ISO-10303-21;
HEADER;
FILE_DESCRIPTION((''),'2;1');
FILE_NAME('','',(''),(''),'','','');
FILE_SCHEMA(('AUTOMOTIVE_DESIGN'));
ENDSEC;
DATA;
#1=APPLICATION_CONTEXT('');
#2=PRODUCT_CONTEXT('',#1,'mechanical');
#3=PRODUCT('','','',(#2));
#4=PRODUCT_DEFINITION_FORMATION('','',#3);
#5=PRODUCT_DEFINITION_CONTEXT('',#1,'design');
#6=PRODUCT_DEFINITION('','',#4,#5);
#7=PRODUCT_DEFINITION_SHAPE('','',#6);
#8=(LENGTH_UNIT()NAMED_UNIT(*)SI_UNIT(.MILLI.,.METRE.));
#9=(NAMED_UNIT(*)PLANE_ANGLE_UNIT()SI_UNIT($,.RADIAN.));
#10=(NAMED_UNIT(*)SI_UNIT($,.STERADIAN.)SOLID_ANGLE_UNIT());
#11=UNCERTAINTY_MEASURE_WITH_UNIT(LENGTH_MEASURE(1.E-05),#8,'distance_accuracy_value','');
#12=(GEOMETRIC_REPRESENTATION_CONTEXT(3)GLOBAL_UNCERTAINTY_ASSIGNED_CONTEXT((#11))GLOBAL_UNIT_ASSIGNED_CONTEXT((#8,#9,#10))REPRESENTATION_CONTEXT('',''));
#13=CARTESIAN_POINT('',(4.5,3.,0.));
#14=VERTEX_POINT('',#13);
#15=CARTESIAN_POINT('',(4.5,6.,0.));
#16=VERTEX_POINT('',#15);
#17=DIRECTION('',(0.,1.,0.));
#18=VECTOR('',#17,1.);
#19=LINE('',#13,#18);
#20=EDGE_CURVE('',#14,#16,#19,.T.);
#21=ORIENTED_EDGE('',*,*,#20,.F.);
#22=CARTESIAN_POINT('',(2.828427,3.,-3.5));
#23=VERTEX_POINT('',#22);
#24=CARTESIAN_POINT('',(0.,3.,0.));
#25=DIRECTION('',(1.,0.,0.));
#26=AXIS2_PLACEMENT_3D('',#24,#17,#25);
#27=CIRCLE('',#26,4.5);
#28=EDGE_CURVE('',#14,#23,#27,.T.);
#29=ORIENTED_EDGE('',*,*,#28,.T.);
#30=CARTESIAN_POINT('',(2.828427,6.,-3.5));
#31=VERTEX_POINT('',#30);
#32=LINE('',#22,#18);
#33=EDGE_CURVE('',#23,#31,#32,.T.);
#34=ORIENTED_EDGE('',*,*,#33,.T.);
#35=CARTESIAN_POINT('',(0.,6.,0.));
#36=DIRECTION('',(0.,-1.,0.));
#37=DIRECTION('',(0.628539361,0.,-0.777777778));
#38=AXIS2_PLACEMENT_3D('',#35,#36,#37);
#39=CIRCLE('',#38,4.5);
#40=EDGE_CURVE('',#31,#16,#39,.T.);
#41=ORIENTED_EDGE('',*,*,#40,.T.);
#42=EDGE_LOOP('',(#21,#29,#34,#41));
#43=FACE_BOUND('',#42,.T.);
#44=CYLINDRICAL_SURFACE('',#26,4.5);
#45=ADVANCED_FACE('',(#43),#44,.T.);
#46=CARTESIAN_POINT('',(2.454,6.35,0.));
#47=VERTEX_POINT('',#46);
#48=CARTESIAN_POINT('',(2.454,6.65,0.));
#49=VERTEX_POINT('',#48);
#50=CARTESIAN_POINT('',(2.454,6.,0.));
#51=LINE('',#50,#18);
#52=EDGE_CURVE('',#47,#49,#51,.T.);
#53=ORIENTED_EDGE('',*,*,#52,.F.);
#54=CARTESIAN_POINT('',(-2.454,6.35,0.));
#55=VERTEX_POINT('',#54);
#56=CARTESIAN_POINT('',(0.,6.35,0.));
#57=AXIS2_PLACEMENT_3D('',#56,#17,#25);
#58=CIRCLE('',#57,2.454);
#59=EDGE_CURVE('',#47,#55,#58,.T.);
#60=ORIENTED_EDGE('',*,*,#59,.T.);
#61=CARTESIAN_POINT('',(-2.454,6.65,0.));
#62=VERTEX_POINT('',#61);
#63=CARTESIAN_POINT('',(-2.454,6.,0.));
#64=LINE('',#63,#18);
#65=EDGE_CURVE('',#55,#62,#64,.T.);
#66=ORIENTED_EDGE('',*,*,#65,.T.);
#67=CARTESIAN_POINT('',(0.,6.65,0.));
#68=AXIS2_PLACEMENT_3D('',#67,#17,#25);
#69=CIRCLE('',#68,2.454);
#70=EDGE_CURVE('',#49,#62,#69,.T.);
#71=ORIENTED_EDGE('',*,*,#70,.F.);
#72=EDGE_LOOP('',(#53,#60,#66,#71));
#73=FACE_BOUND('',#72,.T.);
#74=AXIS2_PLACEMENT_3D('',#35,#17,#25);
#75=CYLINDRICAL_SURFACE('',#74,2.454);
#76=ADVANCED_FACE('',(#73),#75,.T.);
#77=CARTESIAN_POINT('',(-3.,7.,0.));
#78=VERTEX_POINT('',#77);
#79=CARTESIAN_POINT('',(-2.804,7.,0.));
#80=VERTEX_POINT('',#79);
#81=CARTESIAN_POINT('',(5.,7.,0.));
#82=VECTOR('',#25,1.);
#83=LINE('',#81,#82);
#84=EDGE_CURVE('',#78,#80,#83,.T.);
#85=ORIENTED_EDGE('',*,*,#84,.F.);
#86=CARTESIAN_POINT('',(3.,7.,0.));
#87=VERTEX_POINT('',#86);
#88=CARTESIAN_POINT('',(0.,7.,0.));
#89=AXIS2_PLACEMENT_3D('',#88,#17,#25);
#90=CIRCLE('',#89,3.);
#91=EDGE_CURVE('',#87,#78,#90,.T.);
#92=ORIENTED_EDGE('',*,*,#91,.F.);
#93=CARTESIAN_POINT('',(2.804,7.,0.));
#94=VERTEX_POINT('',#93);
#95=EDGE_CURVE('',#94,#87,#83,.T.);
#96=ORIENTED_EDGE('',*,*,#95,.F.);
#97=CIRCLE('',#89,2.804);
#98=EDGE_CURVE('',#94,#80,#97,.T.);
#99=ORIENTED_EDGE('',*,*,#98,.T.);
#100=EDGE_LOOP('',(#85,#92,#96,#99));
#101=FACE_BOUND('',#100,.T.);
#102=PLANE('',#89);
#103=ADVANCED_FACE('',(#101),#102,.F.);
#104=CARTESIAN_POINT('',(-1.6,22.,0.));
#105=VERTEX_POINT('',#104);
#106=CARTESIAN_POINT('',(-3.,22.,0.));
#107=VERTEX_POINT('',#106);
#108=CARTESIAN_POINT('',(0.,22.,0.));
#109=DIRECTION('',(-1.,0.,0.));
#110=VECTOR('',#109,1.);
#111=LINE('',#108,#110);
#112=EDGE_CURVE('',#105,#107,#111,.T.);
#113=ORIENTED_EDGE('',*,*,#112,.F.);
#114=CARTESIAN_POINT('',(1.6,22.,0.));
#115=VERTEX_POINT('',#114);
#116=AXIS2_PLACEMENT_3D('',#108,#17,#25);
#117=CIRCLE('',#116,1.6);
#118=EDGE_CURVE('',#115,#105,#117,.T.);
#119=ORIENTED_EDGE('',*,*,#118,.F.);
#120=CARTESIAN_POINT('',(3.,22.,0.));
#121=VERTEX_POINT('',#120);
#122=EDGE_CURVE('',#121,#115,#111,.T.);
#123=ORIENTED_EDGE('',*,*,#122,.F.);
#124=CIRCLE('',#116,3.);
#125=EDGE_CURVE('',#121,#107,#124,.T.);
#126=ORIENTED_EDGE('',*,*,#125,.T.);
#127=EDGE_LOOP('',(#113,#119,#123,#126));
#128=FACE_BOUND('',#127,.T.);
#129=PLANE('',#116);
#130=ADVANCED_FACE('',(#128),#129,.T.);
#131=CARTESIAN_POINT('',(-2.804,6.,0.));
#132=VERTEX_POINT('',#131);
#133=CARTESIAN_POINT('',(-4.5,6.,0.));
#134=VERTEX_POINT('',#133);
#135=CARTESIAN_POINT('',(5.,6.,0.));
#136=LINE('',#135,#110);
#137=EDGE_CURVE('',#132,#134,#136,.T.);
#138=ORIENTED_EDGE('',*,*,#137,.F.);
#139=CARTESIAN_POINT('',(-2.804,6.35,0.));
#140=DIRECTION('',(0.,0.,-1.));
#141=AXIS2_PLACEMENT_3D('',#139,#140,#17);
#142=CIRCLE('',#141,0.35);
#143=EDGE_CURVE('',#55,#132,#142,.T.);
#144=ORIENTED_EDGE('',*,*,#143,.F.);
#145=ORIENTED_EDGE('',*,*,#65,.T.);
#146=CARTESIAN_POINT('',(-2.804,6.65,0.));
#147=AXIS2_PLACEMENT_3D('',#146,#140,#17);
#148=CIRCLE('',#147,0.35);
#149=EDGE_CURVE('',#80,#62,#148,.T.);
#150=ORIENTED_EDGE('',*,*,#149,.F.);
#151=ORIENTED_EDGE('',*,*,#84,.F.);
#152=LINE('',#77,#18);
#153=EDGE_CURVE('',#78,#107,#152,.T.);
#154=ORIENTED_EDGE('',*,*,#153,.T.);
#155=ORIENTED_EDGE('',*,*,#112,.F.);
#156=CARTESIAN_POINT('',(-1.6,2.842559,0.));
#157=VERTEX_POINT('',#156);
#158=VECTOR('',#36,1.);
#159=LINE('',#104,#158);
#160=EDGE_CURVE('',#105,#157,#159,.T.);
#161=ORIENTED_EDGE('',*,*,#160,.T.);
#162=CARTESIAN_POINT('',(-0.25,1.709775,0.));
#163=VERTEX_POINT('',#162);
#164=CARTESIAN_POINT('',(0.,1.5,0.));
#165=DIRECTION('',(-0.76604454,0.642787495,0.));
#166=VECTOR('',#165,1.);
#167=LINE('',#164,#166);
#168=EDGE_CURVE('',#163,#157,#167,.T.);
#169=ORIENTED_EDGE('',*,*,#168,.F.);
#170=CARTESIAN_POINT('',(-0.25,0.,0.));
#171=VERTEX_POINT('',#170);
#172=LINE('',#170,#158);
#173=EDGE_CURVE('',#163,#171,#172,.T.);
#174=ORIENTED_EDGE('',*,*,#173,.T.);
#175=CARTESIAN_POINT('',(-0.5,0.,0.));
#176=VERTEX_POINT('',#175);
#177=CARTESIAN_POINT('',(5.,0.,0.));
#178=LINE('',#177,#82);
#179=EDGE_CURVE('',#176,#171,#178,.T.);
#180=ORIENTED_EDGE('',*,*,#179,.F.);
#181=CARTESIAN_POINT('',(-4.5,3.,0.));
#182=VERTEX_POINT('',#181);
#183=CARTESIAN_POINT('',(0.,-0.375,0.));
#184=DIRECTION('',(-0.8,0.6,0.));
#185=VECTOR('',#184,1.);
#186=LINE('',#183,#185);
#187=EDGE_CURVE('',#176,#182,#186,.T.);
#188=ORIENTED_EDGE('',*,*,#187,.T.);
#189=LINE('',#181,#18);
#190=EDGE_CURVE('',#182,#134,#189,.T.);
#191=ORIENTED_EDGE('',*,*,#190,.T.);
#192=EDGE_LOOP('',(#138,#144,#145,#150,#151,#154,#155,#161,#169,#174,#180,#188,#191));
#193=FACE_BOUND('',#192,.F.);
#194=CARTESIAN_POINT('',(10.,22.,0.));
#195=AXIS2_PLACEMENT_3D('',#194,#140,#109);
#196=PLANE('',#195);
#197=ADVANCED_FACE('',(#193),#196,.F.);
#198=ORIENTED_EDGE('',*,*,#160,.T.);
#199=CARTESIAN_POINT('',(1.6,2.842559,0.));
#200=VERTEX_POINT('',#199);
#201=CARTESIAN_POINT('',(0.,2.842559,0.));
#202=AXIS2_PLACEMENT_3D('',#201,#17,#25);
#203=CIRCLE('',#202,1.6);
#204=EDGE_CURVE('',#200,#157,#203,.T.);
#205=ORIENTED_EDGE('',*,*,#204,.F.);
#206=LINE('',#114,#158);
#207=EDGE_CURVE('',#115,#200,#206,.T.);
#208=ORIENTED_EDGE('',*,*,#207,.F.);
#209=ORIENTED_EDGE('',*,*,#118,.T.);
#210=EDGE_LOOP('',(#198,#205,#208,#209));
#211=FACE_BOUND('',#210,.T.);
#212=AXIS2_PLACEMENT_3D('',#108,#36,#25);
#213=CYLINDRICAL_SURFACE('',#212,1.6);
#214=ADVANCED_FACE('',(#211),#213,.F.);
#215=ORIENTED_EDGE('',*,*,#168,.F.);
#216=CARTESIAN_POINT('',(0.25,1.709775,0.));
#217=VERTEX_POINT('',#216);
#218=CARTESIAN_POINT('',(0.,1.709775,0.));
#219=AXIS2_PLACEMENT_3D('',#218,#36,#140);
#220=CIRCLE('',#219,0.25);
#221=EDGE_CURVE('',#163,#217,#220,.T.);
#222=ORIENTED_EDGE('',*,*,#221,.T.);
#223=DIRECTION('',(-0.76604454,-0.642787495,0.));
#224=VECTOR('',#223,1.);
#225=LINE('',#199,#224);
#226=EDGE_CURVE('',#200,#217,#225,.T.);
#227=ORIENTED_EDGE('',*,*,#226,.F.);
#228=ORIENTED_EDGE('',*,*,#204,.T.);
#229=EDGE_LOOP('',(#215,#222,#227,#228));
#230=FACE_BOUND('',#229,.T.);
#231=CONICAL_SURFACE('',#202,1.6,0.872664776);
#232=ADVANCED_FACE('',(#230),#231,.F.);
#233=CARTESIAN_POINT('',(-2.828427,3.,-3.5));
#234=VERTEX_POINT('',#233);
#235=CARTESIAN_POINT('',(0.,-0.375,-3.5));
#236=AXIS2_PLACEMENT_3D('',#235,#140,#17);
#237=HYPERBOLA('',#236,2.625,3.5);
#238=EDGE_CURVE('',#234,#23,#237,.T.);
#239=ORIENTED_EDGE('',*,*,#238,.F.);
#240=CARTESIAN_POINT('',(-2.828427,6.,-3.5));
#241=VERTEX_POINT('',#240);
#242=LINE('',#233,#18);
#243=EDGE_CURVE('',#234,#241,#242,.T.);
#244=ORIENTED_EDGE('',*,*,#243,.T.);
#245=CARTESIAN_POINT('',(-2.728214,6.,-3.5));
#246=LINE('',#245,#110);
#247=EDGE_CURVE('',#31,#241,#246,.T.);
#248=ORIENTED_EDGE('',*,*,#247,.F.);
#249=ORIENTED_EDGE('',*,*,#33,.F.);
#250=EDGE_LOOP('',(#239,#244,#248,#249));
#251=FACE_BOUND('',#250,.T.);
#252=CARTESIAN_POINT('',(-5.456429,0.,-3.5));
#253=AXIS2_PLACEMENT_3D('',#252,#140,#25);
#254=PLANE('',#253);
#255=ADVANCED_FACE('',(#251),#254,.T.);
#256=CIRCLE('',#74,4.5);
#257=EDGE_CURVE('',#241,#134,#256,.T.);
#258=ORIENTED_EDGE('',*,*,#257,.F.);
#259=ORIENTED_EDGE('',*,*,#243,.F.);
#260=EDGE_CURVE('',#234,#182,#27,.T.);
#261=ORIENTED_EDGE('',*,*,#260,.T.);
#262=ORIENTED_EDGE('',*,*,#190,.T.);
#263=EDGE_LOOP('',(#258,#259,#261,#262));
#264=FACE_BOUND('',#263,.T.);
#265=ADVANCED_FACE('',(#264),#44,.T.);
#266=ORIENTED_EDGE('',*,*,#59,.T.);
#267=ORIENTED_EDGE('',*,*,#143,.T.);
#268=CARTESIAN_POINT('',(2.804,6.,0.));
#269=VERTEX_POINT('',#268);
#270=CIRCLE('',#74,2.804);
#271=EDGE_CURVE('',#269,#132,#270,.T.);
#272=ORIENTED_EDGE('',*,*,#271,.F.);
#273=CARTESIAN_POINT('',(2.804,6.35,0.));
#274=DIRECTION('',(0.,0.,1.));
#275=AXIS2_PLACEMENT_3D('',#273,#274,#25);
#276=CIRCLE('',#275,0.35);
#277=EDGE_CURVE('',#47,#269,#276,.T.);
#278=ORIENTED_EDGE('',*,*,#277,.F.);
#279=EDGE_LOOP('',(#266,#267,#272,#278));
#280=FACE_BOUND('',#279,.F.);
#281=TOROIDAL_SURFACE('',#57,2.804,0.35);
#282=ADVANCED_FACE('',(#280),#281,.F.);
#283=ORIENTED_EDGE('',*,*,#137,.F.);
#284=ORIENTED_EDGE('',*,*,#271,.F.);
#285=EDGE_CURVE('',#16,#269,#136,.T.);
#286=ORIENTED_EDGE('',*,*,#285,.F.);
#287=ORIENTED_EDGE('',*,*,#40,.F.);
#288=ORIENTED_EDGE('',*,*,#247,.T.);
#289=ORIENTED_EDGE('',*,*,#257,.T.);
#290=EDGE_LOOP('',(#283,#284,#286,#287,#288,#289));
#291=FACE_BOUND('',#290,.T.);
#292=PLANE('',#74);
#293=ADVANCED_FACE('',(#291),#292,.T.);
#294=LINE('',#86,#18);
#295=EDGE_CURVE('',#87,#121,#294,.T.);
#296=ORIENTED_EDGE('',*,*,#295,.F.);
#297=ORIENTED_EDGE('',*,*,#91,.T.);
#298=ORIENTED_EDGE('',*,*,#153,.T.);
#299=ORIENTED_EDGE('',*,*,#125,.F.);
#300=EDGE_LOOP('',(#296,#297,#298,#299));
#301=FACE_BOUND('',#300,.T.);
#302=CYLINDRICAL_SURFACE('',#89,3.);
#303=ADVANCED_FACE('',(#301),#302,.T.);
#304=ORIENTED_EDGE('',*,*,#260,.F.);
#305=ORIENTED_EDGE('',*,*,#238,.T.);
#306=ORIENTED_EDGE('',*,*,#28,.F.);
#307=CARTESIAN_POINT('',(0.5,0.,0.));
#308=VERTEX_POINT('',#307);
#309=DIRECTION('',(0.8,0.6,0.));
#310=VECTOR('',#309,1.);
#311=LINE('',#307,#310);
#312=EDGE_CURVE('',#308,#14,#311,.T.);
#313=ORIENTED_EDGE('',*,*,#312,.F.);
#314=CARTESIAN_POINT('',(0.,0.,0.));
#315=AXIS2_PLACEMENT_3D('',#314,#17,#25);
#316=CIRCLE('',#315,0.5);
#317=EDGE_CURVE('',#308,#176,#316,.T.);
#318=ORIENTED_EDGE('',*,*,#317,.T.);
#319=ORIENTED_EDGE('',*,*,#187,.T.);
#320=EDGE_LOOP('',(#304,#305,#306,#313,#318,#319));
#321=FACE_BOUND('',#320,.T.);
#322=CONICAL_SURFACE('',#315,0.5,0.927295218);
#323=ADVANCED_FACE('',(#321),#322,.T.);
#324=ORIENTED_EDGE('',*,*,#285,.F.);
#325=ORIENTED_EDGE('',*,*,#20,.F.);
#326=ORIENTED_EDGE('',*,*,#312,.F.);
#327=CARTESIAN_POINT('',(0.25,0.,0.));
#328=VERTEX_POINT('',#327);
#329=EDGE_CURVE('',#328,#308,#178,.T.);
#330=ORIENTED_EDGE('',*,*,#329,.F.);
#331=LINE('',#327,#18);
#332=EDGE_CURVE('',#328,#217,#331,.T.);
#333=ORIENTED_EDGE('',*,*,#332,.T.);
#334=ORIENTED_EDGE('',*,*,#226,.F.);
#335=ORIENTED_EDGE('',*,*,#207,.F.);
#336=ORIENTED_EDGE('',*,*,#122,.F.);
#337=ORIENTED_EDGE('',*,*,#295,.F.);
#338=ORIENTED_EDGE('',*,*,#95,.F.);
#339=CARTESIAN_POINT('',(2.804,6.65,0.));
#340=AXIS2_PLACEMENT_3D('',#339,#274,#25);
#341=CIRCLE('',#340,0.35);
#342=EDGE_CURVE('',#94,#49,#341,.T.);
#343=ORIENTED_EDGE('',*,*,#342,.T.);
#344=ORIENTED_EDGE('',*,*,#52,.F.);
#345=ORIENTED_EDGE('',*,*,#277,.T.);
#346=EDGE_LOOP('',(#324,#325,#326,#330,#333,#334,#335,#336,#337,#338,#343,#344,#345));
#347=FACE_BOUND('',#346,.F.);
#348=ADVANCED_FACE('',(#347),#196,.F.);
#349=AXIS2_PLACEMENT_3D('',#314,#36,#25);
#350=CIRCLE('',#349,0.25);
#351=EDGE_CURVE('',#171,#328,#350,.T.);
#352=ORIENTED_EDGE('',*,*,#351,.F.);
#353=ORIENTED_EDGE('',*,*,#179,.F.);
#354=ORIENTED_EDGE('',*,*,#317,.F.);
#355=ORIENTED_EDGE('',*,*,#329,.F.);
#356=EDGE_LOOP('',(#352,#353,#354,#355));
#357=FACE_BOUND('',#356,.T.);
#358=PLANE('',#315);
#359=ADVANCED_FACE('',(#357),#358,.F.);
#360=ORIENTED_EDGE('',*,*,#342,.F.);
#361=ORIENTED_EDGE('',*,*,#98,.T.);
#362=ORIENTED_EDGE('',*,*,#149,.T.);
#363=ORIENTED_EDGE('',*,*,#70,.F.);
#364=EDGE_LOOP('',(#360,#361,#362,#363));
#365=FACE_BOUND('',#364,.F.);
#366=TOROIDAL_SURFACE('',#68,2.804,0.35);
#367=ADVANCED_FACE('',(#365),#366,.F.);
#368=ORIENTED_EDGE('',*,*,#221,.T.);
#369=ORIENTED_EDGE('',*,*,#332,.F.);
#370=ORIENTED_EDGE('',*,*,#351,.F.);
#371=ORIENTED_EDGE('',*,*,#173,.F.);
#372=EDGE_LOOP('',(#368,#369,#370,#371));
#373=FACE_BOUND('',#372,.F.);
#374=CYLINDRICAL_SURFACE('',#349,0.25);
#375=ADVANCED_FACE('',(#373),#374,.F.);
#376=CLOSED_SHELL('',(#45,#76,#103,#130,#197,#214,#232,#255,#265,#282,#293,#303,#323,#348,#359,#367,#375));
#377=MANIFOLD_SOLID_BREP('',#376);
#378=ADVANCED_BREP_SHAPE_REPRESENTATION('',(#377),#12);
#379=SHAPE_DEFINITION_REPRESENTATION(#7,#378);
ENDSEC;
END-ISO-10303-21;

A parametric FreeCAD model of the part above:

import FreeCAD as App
import Part
import Sketcher

V = App.Vector
Q = App.Units.Quantity


def edges_at(feature, points):
    """Names of the edges that pass closest to the given points."""
    edges = feature.Shape.Edges
    near = lambda p: min(range(len(edges)), key=lambda i: edges[i].distToShape(Part.Vertex(*p))[0])
    return sorted({f"Edge{near(p) + 1}" for p in points})

doc = App.newDocument("Part")
params = doc.addObject("Spreadsheet::Sheet", "Params")
for row, (alias, value) in enumerate([
    ("sketch1_height", "3 mm"),
    ("sketch1_height2", "1 mm"),
    ("sketch1_height3", "15 mm"),
    ("sketch1_length", "5 mm"),
    ("sketch1_width", "0.5 mm"),
    ("revolution_angle", "360 deg"),
    ("sketch2_diameter", "0.5 mm"),
    ("pocket1_length", "5 mm"),
    ("sketch3_width", "10 mm"),
    ("fillet_radius", "0.35 mm"),
    ("sketch4_width", "20 mm"),
    ("sketch4_height", "10 mm"),
], start=1):
    params.set(f"A{row}", alias)
    params.set(f"B{row}", "=" + value)
    params.setAlias(f"B{row}", alias)

body = doc.addObject("PartDesign::Body", "Body")

sketch1 = body.newObject("Sketcher::SketchObject", "Sketch")
sketch1.AttachmentSupport = (doc.getObject("XY_Plane"), [""])
sketch1.MapMode = "FlatFace"
sketch1.addGeometry([
    Part.LineSegment(V(0, 0, 0), V(0.5, 0, 0)),
    Part.LineSegment(V(0.5, 0, 0), V(4.5, 3, 0)),
    Part.LineSegment(V(4.5, 3, 0), V(4.5, 6, 0)),
    Part.LineSegment(V(4.5, 6, 0), V(2.5, 6, 0)),
    Part.LineSegment(V(2.5, 6, 0), V(2.5, 7, 0)),
    Part.LineSegment(V(2.5, 7, 0), V(3, 7, 0)),
    Part.LineSegment(V(3, 7, 0), V(3, 22, 0)),
    Part.LineSegment(V(3, 22, 0), V(1.6, 22, 0)),
    Part.LineSegment(V(1.6, 22, 0), V(1.6, 2.8, 0)),
    Part.LineSegment(V(1.6, 2.8, 0), V(0, 1.5, 0)),
    Part.LineSegment(V(0, 1.5, 0), V(0, 0, 0)),
], False)
sketch1.addConstraint([
    Sketcher.Constraint("Coincident", 0, 2, 1, 1),
    Sketcher.Constraint("Coincident", 1, 2, 2, 1),
    Sketcher.Constraint("Coincident", 2, 2, 3, 1),
    Sketcher.Constraint("Coincident", 3, 2, 4, 1),
    Sketcher.Constraint("Coincident", 4, 2, 5, 1),
    Sketcher.Constraint("Coincident", 5, 2, 6, 1),
    Sketcher.Constraint("Coincident", 6, 2, 7, 1),
    Sketcher.Constraint("Coincident", 7, 2, 8, 1),
    Sketcher.Constraint("Coincident", 8, 2, 9, 1),
    Sketcher.Constraint("Coincident", 9, 2, 10, 1),
    Sketcher.Constraint("Coincident", 10, 2, 0, 1),
    Sketcher.Constraint("Horizontal", 0),
    Sketcher.Constraint("Vertical", 2),
    Sketcher.Constraint("Horizontal", 3),
    Sketcher.Constraint("Vertical", 4),
    Sketcher.Constraint("Horizontal", 5),
    Sketcher.Constraint("Vertical", 6),
    Sketcher.Constraint("Horizontal", 7),
    Sketcher.Constraint("Vertical", 8),
    Sketcher.Constraint("Vertical", 10),
    Sketcher.Constraint("Coincident", 10, 2, -1, 1),
    Sketcher.Constraint("DistanceY", 2, 1, 2, 2, 3.0),
    Sketcher.Constraint("DistanceY", 4, 1, 4, 2, 1.0),
    Sketcher.Constraint("DistanceY", 6, 1, 6, 2, 15.0),
    Sketcher.Constraint("Angle", 9, Q("-140.000009 deg")),
    Sketcher.Constraint("Distance", 1, 5.0),
    Sketcher.Constraint("DistanceX", 0, 1, 0, 2, 0.5),
    Sketcher.Constraint("DistanceX", 7, 2, 7, 1, 1.4),
    Sketcher.Constraint("DistanceY", 10, 2, 10, 1, 1.5),
    Sketcher.Constraint("DistanceY", -1, 1, 1, 2, 3.0),
    Sketcher.Constraint("DistanceX", -1, 1, 5, 2, 3.0),
    Sketcher.Constraint("DistanceX", 3, 2, 3, 1, 2.046),
])
sketch1.setExpression("Constraints[21]", "Params.sketch1_height")
sketch1.setExpression("Constraints[22]", "Params.sketch1_height2")
sketch1.setExpression("Constraints[23]", "Params.sketch1_height3")
sketch1.setExpression("Constraints[25]", "Params.sketch1_length")
sketch1.setExpression("Constraints[26]", "Params.sketch1_width")
revolution = body.newObject("PartDesign::Revolution", "Revolution")
revolution.Profile = sketch1
revolution.ReferenceAxis = (sketch1, ["V_Axis"])
revolution.setExpression("Angle", "Params.revolution_angle")

sketch2 = body.newObject("Sketcher::SketchObject", "Sketch001")
sketch2.AttachmentSupport = (doc.getObject("XZ_Plane"), [""])
sketch2.MapMode = "FlatFace"
sketch2.addGeometry(Part.Circle(V(0, 0, 0), V(0, 0, 1), 0.25), False)
sketch2.addConstraint([
    Sketcher.Constraint("Coincident", 0, 3, -1, 1),
    Sketcher.Constraint("Diameter", 0, 0.5),
])
sketch2.setExpression("Constraints[1]", "Params.sketch2_diameter")
pocket1 = body.newObject("PartDesign::Pocket", "Pocket")
pocket1.Profile = sketch2
pocket1.setExpression("Length", "Params.pocket1_length")

sketch3 = body.newObject("Sketcher::SketchObject", "Sketch002")
sketch3.AttachmentSupport = (doc.getObject("XZ_Plane"), [""])
sketch3.MapMode = "FlatFace"
sketch3.addGeometry([
    Part.LineSegment(V(-5.4, 5.6, 0), V(-5.4, 3.5, 0)),
    Part.LineSegment(V(-5.4, 3.5, 0), V(4.6, 3.5, 0)),
    Part.LineSegment(V(4.6, 3.5, 0), V(4.6, 5.6, 0)),
    Part.LineSegment(V(4.6, 5.6, 0), V(-5.4, 5.6, 0)),
    Part.LineSegment(V(-5.5, -3.5, 0), V(-5.5, -5.8, 0)),
    Part.LineSegment(V(-5.5, -5.8, 0), V(4.5, -5.8, 0)),
    Part.LineSegment(V(4.5, -5.8, 0), V(4.5, -3.5, 0)),
    Part.LineSegment(V(4.5, -3.5, 0), V(-5.5, -3.5, 0)),
], False)
sketch3.addConstraint([
    Sketcher.Constraint("Coincident", 0, 2, 1, 1),
    Sketcher.Constraint("Coincident", 1, 2, 2, 1),
    Sketcher.Constraint("Coincident", 2, 2, 3, 1),
    Sketcher.Constraint("Coincident", 3, 2, 0, 1),
    Sketcher.Constraint("Coincident", 4, 2, 5, 1),
    Sketcher.Constraint("Coincident", 5, 2, 6, 1),
    Sketcher.Constraint("Coincident", 6, 2, 7, 1),
    Sketcher.Constraint("Coincident", 7, 2, 4, 1),
    Sketcher.Constraint("Vertical", 0),
    Sketcher.Constraint("Horizontal", 1),
    Sketcher.Constraint("Vertical", 2),
    Sketcher.Constraint("Horizontal", 3),
    Sketcher.Constraint("Vertical", 4),
    Sketcher.Constraint("Horizontal", 5),
    Sketcher.Constraint("Vertical", 6),
    Sketcher.Constraint("Horizontal", 7),
    Sketcher.Constraint("Equal", 3, 5),
    Sketcher.Constraint("DistanceX", 1, 1, 1, 2, 10.0),
    Sketcher.Constraint("DistanceY", 6, 2, 1, 2, 7.000001),
    Sketcher.Constraint("DistanceY", -1, 1, 0, 2, 3.500001),
    Sketcher.Constraint("DistanceY", 0, 2, 0, 1, 2.096101),
    Sketcher.Constraint("DistanceY", 4, 2, 4, 1, 2.304512),
    Sketcher.Constraint("DistanceX", 4, 2, -1, 1, 5.456429),
    Sketcher.Constraint("DistanceX", 4, 2, 0, 2, 0.037491),
])
sketch3.setExpression("Constraints[17]", "Params.sketch3_width")
pocket2 = body.newObject("PartDesign::Pocket", "Pocket001")
pocket2.Profile = sketch3
pocket2.Type = "ThroughAll"
doc.recompute()

fillet = body.newObject("PartDesign::Fillet", "Fillet")
fillet.Base = (pocket2, edges_at(pocket2, [(-2.454, 7, 0), (-2.454, 6, 0)]))
fillet.setExpression("Radius", "Params.fillet_radius")

sketch4 = body.newObject("Sketcher::SketchObject", "Sketch003")
sketch4.AttachmentSupport = (doc.getObject("XZ_Plane"), [""])
sketch4.MapMode = "FlatFace"
sketch4.AttachmentOffset = App.Placement(V(0, 0, -22), App.Rotation())
sketch4.addGeometry([
    Part.LineSegment(V(10, 10, 0), V(10, 0, 0)),
    Part.LineSegment(V(10, 0, 0), V(-10, 0, 0)),
    Part.LineSegment(V(-10, 0, 0), V(-10, 10, 0)),
    Part.LineSegment(V(-10, 10, 0), V(10, 10, 0)),
], False)
sketch4.addConstraint([
    Sketcher.Constraint("Coincident", 0, 2, 1, 1),
    Sketcher.Constraint("Coincident", 1, 2, 2, 1),
    Sketcher.Constraint("Coincident", 2, 2, 3, 1),
    Sketcher.Constraint("Coincident", 3, 2, 0, 1),
    Sketcher.Constraint("Vertical", 0),
    Sketcher.Constraint("Horizontal", 1),
    Sketcher.Constraint("Vertical", 2),
    Sketcher.Constraint("Horizontal", 3),
    Sketcher.Constraint("Symmetric", 0, 2, 1, 2, -1, 1),
    Sketcher.Constraint("DistanceX", 1, 2, 1, 1, 20.0),
    Sketcher.Constraint("DistanceY", 0, 2, 0, 1, 10.0),
])
sketch4.setExpression("Constraints[9]", "Params.sketch4_width")
sketch4.setExpression("Constraints[10]", "Params.sketch4_height")
pocket3 = body.newObject("PartDesign::Pocket", "Pocket002")
pocket3.Profile = sketch4
pocket3.Type = "ThroughAll"
pocket3.Reversed = True

doc.recompute()
